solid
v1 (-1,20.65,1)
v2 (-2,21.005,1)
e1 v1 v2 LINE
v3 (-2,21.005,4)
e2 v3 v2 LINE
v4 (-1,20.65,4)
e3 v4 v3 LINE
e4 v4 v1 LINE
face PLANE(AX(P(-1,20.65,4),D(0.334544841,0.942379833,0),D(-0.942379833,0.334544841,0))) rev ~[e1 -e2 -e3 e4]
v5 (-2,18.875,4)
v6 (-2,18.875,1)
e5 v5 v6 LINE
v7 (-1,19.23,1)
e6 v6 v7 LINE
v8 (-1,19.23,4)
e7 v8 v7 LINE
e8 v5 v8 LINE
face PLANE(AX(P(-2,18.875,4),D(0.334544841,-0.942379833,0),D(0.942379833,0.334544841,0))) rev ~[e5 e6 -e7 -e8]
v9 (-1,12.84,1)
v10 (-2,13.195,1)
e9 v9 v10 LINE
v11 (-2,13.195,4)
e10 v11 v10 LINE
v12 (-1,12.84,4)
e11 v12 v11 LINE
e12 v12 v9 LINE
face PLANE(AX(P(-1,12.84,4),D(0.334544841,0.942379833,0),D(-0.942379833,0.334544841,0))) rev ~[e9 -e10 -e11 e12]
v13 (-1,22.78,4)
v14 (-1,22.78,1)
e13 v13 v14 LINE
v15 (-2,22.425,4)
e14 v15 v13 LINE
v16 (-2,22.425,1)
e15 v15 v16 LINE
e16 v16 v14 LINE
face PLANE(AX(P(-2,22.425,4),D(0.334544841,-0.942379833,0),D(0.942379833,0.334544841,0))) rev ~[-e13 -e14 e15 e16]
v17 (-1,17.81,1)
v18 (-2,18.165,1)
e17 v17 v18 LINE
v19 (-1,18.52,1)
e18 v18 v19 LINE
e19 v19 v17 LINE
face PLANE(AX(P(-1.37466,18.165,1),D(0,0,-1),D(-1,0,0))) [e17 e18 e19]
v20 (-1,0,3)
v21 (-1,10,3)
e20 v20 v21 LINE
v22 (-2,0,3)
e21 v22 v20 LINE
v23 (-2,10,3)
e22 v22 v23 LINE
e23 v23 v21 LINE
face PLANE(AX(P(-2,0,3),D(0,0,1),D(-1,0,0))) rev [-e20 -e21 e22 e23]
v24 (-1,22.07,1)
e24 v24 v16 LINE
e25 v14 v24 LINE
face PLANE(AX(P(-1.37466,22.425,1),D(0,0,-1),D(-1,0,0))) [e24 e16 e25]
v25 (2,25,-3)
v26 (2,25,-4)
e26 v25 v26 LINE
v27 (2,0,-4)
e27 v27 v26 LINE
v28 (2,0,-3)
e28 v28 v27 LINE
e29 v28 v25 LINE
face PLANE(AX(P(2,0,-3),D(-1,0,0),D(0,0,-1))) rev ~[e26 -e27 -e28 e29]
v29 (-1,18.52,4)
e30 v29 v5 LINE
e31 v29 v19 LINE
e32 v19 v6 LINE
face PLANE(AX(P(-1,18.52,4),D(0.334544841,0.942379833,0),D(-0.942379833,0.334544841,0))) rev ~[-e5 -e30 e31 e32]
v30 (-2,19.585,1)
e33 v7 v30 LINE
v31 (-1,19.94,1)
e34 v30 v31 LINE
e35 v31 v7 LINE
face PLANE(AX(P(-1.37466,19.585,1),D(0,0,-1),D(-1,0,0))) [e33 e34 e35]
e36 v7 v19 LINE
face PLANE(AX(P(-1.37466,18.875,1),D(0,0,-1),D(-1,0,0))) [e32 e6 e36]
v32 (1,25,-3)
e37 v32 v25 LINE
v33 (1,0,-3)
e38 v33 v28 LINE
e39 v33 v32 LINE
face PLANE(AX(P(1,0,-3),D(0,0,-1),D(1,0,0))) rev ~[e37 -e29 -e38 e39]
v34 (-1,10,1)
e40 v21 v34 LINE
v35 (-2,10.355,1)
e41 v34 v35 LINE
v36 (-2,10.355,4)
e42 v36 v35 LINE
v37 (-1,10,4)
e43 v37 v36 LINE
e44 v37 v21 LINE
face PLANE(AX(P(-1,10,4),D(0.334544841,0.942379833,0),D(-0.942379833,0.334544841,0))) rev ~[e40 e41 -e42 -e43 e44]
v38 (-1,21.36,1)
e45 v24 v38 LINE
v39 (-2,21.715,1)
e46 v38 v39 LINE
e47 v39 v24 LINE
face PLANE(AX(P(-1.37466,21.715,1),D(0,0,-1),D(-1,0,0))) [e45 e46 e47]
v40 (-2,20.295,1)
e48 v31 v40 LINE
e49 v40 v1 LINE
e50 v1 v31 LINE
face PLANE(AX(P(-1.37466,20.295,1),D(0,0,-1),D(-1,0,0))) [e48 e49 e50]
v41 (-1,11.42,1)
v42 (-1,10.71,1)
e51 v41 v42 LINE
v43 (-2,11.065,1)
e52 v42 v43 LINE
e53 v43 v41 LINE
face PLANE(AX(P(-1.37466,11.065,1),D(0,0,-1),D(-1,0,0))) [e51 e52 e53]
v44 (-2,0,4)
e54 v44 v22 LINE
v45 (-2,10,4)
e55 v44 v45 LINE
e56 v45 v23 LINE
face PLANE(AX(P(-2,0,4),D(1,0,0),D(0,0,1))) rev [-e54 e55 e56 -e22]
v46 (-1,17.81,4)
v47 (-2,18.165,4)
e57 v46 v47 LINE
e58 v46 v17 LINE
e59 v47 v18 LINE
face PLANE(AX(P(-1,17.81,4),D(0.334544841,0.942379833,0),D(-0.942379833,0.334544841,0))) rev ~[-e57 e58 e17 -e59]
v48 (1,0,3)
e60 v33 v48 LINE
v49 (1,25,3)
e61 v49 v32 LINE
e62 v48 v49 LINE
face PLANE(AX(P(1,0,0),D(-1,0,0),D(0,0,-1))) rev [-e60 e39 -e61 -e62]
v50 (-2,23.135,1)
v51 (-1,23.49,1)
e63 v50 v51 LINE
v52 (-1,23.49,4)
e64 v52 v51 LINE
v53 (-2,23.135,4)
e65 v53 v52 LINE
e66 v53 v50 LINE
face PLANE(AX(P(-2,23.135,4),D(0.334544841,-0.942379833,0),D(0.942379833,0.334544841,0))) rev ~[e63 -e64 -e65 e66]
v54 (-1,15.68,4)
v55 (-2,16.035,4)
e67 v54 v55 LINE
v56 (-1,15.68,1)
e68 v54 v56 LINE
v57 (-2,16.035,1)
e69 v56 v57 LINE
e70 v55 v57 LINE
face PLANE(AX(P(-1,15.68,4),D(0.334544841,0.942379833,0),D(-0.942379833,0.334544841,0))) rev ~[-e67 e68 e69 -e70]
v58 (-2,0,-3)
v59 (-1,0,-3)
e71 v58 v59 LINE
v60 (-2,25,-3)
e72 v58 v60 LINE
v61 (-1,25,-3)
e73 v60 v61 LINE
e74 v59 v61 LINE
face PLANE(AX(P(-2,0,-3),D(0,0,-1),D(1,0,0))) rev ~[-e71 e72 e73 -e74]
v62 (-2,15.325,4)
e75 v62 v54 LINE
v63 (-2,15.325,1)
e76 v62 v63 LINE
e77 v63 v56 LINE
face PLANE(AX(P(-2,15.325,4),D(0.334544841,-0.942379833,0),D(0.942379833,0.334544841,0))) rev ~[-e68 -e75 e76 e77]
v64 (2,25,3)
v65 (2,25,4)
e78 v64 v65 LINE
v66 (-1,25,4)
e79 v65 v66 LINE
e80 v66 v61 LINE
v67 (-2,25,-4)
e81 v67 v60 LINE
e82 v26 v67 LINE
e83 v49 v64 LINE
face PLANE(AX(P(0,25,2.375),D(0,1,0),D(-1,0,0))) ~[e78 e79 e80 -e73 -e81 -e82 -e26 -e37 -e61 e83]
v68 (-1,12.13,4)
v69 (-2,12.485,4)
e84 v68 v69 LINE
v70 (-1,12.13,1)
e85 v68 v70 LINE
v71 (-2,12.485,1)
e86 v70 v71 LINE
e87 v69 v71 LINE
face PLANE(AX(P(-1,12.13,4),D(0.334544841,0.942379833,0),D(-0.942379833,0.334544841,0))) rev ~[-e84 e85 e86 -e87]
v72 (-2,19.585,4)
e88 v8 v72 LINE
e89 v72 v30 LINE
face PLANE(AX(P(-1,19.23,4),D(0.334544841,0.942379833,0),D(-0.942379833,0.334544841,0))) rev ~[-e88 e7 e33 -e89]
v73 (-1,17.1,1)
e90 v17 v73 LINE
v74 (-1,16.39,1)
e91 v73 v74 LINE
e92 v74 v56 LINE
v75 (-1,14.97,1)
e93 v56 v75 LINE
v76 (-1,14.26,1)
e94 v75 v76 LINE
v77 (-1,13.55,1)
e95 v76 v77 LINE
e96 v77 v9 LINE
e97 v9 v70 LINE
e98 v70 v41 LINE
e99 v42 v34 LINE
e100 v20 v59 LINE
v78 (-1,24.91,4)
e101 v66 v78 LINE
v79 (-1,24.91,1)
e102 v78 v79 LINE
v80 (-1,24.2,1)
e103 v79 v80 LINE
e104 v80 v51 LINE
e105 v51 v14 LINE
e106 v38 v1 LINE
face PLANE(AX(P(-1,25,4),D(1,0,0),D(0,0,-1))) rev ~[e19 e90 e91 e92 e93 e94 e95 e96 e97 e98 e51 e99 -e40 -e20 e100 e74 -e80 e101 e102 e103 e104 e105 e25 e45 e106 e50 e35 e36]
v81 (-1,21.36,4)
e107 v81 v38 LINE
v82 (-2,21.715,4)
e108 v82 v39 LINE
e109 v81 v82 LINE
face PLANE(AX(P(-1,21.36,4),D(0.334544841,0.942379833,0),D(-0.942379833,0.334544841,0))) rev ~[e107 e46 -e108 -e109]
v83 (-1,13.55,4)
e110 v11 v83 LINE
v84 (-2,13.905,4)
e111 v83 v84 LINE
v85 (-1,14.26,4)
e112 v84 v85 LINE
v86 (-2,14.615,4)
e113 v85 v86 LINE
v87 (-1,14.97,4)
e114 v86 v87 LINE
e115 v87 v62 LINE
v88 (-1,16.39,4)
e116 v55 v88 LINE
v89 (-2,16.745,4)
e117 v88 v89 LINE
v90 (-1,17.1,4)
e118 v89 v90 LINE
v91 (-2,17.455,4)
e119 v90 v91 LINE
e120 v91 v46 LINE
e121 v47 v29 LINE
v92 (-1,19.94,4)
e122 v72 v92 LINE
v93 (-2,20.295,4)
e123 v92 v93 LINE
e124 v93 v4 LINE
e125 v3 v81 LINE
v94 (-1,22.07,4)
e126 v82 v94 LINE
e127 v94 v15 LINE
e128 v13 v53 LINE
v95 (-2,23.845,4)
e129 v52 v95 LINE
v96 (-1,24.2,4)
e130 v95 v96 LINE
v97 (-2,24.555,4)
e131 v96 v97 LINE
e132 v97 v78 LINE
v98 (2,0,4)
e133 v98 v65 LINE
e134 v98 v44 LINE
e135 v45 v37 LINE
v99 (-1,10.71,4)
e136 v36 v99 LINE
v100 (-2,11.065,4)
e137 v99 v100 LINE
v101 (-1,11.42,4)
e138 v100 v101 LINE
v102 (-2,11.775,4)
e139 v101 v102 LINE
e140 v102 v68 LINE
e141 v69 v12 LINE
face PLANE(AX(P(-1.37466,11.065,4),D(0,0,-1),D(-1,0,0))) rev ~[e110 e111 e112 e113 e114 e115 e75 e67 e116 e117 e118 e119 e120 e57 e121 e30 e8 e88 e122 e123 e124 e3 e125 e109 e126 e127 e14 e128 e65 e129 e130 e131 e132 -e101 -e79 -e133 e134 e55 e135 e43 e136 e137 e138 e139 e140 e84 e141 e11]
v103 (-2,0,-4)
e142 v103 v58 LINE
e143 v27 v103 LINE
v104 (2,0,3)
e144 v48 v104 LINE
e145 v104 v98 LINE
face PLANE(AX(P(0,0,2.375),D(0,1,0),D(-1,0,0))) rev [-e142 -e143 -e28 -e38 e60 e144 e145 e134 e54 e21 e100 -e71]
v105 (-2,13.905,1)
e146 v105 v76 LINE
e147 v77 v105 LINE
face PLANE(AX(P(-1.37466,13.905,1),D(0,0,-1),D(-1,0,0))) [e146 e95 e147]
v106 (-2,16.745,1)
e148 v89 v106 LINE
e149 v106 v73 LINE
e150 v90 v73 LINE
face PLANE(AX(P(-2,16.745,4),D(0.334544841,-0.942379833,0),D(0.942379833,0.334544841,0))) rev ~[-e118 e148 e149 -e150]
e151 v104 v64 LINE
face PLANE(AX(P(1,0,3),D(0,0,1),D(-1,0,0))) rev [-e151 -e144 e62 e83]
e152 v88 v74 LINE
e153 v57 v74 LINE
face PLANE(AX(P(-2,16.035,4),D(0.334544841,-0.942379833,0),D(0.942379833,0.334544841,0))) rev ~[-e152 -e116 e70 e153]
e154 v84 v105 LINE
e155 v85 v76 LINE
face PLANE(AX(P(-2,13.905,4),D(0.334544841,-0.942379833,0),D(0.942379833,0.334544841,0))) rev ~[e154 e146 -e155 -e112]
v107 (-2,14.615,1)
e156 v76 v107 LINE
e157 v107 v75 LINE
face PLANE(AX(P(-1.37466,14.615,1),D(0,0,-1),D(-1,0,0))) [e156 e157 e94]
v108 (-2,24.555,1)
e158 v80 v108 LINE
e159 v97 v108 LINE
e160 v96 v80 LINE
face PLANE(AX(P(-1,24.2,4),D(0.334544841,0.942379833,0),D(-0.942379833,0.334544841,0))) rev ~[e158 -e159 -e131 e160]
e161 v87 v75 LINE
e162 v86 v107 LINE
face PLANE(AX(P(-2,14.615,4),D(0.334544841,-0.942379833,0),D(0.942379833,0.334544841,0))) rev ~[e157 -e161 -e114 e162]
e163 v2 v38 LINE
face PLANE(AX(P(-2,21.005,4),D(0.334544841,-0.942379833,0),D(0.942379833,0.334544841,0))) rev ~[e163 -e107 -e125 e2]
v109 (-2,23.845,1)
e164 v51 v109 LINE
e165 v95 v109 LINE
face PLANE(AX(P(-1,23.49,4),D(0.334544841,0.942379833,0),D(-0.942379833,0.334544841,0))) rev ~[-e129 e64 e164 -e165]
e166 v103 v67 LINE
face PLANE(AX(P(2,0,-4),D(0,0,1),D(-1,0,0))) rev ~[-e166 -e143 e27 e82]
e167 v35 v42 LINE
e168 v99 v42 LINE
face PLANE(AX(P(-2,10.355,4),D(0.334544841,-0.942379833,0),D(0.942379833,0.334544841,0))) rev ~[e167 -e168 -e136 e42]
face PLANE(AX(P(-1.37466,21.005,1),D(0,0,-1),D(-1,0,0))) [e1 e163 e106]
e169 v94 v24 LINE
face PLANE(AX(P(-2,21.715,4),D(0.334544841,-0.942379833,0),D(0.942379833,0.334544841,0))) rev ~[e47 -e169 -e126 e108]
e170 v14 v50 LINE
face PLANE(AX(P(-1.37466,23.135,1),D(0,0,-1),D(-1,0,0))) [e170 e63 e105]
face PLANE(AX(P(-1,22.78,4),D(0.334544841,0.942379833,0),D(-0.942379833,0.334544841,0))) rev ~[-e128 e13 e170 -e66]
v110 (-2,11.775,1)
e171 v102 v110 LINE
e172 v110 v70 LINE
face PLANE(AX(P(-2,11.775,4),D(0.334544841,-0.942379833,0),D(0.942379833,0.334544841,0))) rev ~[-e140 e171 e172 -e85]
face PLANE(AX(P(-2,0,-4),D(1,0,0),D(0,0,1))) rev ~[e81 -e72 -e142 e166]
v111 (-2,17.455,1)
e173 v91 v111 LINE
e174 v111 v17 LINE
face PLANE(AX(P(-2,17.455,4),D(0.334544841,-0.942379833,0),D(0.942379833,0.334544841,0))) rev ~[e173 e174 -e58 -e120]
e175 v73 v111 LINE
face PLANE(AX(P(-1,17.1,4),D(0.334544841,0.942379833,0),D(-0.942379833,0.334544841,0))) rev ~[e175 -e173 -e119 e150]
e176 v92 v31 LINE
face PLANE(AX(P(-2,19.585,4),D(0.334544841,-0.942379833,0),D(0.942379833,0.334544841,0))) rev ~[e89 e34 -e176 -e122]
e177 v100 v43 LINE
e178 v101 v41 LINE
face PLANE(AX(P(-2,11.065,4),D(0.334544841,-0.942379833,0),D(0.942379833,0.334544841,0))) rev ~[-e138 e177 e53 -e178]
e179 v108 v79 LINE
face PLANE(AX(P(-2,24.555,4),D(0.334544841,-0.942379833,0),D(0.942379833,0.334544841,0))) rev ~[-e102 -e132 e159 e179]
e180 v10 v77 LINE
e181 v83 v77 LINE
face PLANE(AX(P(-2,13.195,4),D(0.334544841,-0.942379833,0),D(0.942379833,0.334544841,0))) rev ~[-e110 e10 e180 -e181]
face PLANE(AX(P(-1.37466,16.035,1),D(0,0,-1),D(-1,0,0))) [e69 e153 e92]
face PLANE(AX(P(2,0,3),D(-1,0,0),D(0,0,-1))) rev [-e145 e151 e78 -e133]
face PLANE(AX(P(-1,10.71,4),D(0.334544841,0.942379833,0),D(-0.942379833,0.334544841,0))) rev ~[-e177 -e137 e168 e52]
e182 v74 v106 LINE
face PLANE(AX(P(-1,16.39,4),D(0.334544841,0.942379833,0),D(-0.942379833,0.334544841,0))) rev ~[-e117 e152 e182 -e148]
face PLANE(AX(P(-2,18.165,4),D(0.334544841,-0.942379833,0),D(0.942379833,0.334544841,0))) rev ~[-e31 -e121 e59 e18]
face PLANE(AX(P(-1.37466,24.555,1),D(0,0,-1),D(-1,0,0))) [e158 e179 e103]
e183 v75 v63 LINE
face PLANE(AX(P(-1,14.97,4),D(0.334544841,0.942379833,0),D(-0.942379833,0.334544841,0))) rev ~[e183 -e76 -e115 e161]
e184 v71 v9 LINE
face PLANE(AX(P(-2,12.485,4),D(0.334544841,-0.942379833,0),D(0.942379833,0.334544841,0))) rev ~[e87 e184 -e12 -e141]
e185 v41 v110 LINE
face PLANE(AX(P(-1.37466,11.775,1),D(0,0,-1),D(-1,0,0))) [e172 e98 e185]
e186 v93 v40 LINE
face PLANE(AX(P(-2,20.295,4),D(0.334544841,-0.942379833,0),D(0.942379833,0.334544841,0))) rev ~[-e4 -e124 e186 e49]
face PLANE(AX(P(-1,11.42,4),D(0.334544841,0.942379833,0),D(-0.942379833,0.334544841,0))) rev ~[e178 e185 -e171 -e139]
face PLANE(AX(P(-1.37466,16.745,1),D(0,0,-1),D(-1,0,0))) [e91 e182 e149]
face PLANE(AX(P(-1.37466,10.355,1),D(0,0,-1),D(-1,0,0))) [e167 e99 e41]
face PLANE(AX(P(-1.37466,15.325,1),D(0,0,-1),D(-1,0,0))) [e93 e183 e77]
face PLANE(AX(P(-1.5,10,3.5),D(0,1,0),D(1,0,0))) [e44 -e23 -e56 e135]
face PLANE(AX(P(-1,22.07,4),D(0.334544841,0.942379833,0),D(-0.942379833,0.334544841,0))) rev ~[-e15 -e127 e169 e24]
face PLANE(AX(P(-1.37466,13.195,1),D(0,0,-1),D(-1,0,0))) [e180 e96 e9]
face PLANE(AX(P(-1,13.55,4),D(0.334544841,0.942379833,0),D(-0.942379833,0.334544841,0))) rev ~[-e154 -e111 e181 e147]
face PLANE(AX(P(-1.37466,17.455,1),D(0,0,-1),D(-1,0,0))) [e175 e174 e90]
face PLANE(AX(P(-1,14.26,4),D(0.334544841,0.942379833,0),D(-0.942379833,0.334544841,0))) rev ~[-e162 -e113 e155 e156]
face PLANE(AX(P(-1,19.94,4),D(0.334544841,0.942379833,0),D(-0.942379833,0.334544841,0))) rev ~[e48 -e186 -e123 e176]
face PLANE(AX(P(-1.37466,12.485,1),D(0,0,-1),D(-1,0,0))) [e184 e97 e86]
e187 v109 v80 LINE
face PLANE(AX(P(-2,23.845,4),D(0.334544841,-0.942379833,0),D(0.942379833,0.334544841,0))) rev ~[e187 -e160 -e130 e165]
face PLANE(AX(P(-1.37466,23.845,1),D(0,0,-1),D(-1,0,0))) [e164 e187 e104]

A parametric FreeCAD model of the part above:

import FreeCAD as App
import Part
import Sketcher
Q = App.Units.Quantity


def add_polygon(sketch, points):
    """Adds a closed chain of lines whose ends are joined by coincident constraints."""
    first, n = sketch.GeometryCount, len(points)
    for a, b in zip(points, points[1:] + points[:1]):
        sketch.addGeometry(Part.LineSegment(App.Vector(*a, 0), App.Vector(*b, 0)), False)
    for i in range(n):
        sketch.addConstraint(Sketcher.Constraint("Coincident", first + i, 2, first + (i + 1) % n, 1))

doc = App.newDocument("Part")
body = doc.addObject("PartDesign::Body", "Body")

# Sketch on XZ plane
sketch1 = body.newObject("Sketcher::SketchObject", "Sketch")
sketch1.AttachmentSupport = (doc.getObject("XZ_Plane"), [""])
sketch1.MapMode = "FlatFace"
add_polygon(sketch1, [(2, -4), (-2, -4), (-2, -3), (-1, -3), (-1, 0), (1, 0), (1, -3), (2, -3)])  # lines 0-7
sketch1.addConstraint(Sketcher.Constraint("Horizontal", 0))
sketch1.addConstraint(Sketcher.Constraint("Vertical", 1))
sketch1.addConstraint(Sketcher.Constraint("Horizontal", 2))
sketch1.addConstraint(Sketcher.Constraint("Vertical", 3))
sketch1.addConstraint(Sketcher.Constraint("Horizontal", 4))
sketch1.addConstraint(Sketcher.Constraint("Vertical", 5))
sketch1.addConstraint(Sketcher.Constraint("Horizontal", 6))
sketch1.addConstraint(Sketcher.Constraint("Vertical", 7))
sketch1.addConstraint(Sketcher.Constraint("Symmetric", 3, 2, 4, 2, -1, 1))
sketch1.addConstraint(Sketcher.Constraint("Symmetric", 1, 2, 6, 2, -2))
sketch1.addConstraint(Sketcher.Constraint("Equal", 6, 1))
sketch1.addConstraint(Sketcher.Constraint("DistanceX", 0, 2, 0, 1, Q("4 mm")))
sketch1.addConstraint(Sketcher.Constraint("DistanceX", 2, 1, 2, 2, Q("1 mm")))
sketch1.addConstraint(Sketcher.Constraint("DistanceY", 3, 1, 3, 2, Q("3 mm")))
pad1 = body.newObject("PartDesign::Pad", "Pad")
pad1.Profile = sketch1
pad1.Length = 25
pad1.Reversed = True
doc.recompute()

mirrored = body.newObject("PartDesign::Mirrored", "Mirrored")
mirrored.Originals = [pad1]
mirrored.MirrorPlane = (doc.getObject("XY_Plane"), [""])
body.Tip = mirrored

# Sketch on XZ plane
sketch2 = body.newObject("Sketcher::SketchObject", "Sketch001")
sketch2.AttachmentSupport = (doc.getObject("XZ_Plane"), [""])
sketch2.MapMode = "FlatFace"
sketch2.AttachmentOffset = App.Placement(App.Vector(0, 0, -25), App.Rotation())
add_polygon(sketch2, [(-2, 3), (-2, 4), (-1, 4), (-1, 3)])  # lines 0-3
sketch2.addConstraint(Sketcher.Constraint("Vertical", 0))
sketch2.addConstraint(Sketcher.Constraint("Horizontal", 1))
sketch2.addConstraint(Sketcher.Constraint("Vertical", 2))
sketch2.addConstraint(Sketcher.Constraint("Horizontal", 3))
sketch2.addConstraint(Sketcher.Constraint("Equal", 3, 0))
sketch2.addConstraint(Sketcher.Constraint("DistanceX", 1, 1, 1, 2, Q("1 mm")))
sketch2.addConstraint(Sketcher.Constraint("DistanceX", 0, 2, -1, 1, Q("2 mm")))
sketch2.addConstraint(Sketcher.Constraint("DistanceY", -1, 1, 0, 2, Q("4 mm")))
pocket1 = body.newObject("PartDesign::Pocket", "Pocket")
pocket1.Profile = sketch2
pocket1.Length = 15
pocket1.Reversed = True

# Sketch on XY plane
sketch3 = body.newObject("Sketcher::SketchObject", "Sketch002")
sketch3.AttachmentSupport = (doc.getObject("XY_Plane"), [""])
sketch3.MapMode = "FlatFace"
sketch3.AttachmentOffset = App.Placement(App.Vector(0, 0, 4), App.Rotation())
add_polygon(sketch3, [(-2, 10.4), (-1, 10), (-1, 10.7)])  # lines 0-2
sketch3.addConstraint(Sketcher.Constraint("Vertical", 1))
sketch3.addConstraint(Sketcher.Constraint("Equal", 0, 2))
sketch3.addConstraint(Sketcher.Constraint("DistanceX", 0, 2, -1, 1, Q("1 mm")))
sketch3.addConstraint(Sketcher.Constraint("DistanceY", -1, 1, 0, 2, Q("10 mm")))
sketch3.addConstraint(Sketcher.Constraint("DistanceX", 2, 2, -1, 1, Q("2 mm")))
sketch3.addConstraint(Sketcher.Constraint("DistanceY", 1, 1, 1, 2, Q("0.71 mm")))
pad2 = body.newObject("PartDesign::Pad", "Pad001")
pad2.Profile = sketch3
pad2.Length = 3
pad2.Reversed = True
doc.recompute()

linearpattern = body.newObject("PartDesign::LinearPattern", "LinearPattern")
linearpattern.Originals = [pad2]
linearpattern.Direction = (doc.getObject("Y_Axis"), [""])
linearpattern.Mode = "offset"
linearpattern.Offset = 0.71
linearpattern.Occurrences = 21
body.Tip = linearpattern

doc.recompute()
